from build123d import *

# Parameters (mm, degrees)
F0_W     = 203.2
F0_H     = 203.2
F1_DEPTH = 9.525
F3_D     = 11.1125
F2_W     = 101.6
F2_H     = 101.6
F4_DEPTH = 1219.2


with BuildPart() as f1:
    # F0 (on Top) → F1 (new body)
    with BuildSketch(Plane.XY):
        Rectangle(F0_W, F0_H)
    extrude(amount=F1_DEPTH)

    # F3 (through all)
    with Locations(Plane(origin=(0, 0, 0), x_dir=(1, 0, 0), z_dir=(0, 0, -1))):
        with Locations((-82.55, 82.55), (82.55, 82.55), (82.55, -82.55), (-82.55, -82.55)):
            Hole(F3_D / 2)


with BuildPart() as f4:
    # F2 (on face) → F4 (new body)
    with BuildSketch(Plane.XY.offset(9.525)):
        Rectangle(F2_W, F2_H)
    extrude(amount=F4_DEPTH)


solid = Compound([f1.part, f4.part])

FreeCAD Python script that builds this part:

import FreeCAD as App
import Part
import Sketcher
from FreeCAD import Vector
Q = App.Units.Quantity

doc = App.newDocument("Part")
body = doc.addObject("PartDesign::Body", "Body")

# Sketch on XY plane
sketch1 = doc.addObject("Sketcher::SketchObject", "Sketch")
body.addObject(sketch1)
sketch1.AttachmentSupport = (doc.XY_Plane, [""])
sketch1.MapMode = "FlatFace"
sketch1.addGeometry([
    Part.LineSegment(Vector(-102, 102, 0), Vector(-102, -102, 0)),
    Part.LineSegment(Vector(-102, -102, 0), Vector(102, -102, 0)),
    Part.LineSegment(Vector(102, -102, 0), Vector(102, 102, 0)),
    Part.LineSegment(Vector(102, 102, 0), Vector(-102, 102, 0)),
], False)
sketch1.addConstraint([
    Sketcher.Constraint("Coincident", 0, 2, 1, 1),
    Sketcher.Constraint("Coincident", 1, 2, 2, 1),
    Sketcher.Constraint("Coincident", 2, 2, 3, 1),
    Sketcher.Constraint("Coincident", 3, 2, 0, 1),
    Sketcher.Constraint("Vertical", 0),
    Sketcher.Constraint("Horizontal", 1),
    Sketcher.Constraint("Vertical", 2),
    Sketcher.Constraint("Horizontal", 3),
    Sketcher.Constraint("Symmetric", 0, 2, 2, 2, -1, 1),
    Sketcher.Constraint("Equal", 3, 0),
    Sketcher.Constraint("DistanceX", 1, 1, 1, 2, Q("8 in")),
])
pad1 = doc.addObject("PartDesign::Pad", "Pad")
body.addObject(pad1)
pad1.Profile = sketch1
pad1.Length = Q("0.375 in")

# Sketch on XY plane
sketch2 = doc.addObject("Sketcher::SketchObject", "Sketch001")
body.addObject(sketch2)
sketch2.AttachmentSupport = (doc.XY_Plane, [""])
sketch2.MapMode = "FlatFace"
sketch2.addGeometry([
    Part.Circle(Vector(-83, -83, 0), Vector(0, 0, 1), 6),
    Part.Circle(Vector(83, -83, 0), Vector(0, 0, 1), 6),
    Part.Circle(Vector(83, 83, 0), Vector(0, 0, 1), 6),
    Part.Circle(Vector(-83, 83, 0), Vector(0, 0, 1), 6),
], False)
sketch2.addConstraint([
    Sketcher.Constraint("Equal", 0, 1),
    Sketcher.Constraint("Equal", 1, 2),
    Sketcher.Constraint("Equal", 2, 3),
    Sketcher.Constraint("Symmetric", 0, 3, 2, 3, -1, 1),
    Sketcher.Constraint("Symmetric", 1, 3, 3, 3, -1, 1),
    Sketcher.Constraint("Symmetric", 0, 3, 1, 3, -2),
    Sketcher.Constraint("Diameter", 0, Q("0.4375 in")),
    Sketcher.Constraint("DistanceX", 0, 3, 1, 3, Q("6.5 in")),
    Sketcher.Constraint("DistanceY", 1, 3, 2, 3, Q("6.5 in")),
])
doc.recompute()
hole = doc.addObject("PartDesign::Hole", "Hole")
body.addObject(hole)
hole.Profile = sketch2
hole.ThreadType = "None"
hole.Diameter = Q("0.4375 in")
hole.DepthType = "ThroughAll"
hole.Reversed = True
body2 = doc.addObject("PartDesign::Body", "Body001")

# Sketch on XY plane
sketch3 = doc.addObject("Sketcher::SketchObject", "Sketch002")
body2.addObject(sketch3)
sketch3.AttachmentSupport = (doc.getObject("XY_Plane001"), [""])
sketch3.MapMode = "FlatFace"
sketch3.AttachmentOffset = App.Placement(Vector(0, 0, 0.375 * 25.4), App.Rotation())
sketch3.addGeometry([
    Part.LineSegment(Vector(-51, 51, 0), Vector(-51, -51, 0)),
    Part.LineSegment(Vector(-51, -51, 0), Vector(51, -51, 0)),
    Part.LineSegment(Vector(51, -51, 0), Vector(51, 51, 0)),
    Part.LineSegment(Vector(51, 51, 0), Vector(-51, 51, 0)),
], False)
sketch3.addConstraint([
    Sketcher.Constraint("Coincident", 0, 2, 1, 1),
    Sketcher.Constraint("Coincident", 1, 2, 2, 1),
    Sketcher.Constraint("Coincident", 2, 2, 3, 1),
    Sketcher.Constraint("Coincident", 3, 2, 0, 1),
    Sketcher.Constraint("Vertical", 0),
    Sketcher.Constraint("Horizontal", 1),
    Sketcher.Constraint("Vertical", 2),
    Sketcher.Constraint("Horizontal", 3),
    Sketcher.Constraint("Symmetric", 0, 2, 2, 2, -1, 1),
    Sketcher.Constraint("Equal", 3, 0),
    Sketcher.Constraint("DistanceX", 1, 1, 1, 2, Q("4 in")),
])
pad2 = doc.addObject("PartDesign::Pad", "Pad001")
body2.addObject(pad2)
pad2.Profile = sketch3
pad2.Length = Q("48 in")

doc.recompute()
